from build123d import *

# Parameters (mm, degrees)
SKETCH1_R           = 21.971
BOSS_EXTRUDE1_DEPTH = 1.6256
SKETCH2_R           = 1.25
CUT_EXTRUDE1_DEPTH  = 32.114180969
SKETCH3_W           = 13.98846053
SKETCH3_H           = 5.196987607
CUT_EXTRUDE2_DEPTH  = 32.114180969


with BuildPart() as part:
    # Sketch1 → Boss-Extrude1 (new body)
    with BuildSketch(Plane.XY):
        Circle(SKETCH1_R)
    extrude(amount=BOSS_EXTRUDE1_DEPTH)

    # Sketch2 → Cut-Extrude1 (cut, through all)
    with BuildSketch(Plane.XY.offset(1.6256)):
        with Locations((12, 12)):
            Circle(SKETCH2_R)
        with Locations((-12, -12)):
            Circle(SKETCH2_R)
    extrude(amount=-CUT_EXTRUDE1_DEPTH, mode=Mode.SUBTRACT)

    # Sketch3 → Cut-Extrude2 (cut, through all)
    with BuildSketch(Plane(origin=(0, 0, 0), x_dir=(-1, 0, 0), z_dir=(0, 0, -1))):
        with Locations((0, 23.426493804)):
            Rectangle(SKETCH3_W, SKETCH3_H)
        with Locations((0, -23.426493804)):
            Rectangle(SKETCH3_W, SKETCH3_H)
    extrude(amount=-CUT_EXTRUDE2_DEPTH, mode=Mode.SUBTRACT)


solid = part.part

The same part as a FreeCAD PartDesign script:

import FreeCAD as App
import Part
import Sketcher
Q = App.Units.Quantity

doc = App.newDocument("Part")
body = doc.addObject("PartDesign::Body", "Body")

sketch1 = doc.addObject("Sketcher::SketchObject", "Sketch")
body.addObject(sketch1)
sketch1.AttachmentSupport = (doc.XY_Plane, [""])
sketch1.MapMode = "FlatFace"
sketch1.addGeometry(Part.Circle(App.Vector(0, 0, 0), App.Vector(0, 0, 1), 21.971), False)
sketch1.addConstraint([
    Sketcher.Constraint("Coincident", 0, 3, -1, 1),
    Sketcher.Constraint("Diameter", 0, Q("1.73 in")),
])
pad1 = doc.addObject("PartDesign::Pad", "Pad")
body.addObject(pad1)
pad1.Profile = sketch1
pad1.Length = Q("0.064 in")

sketch2 = doc.addObject("Sketcher::SketchObject", "Sketch001")
body.addObject(sketch2)
sketch2.AttachmentSupport = (doc.XY_Plane, [""])
sketch2.MapMode = "FlatFace"
sketch2.AttachmentOffset = App.Placement(App.Vector(0, 0, 0.064 * 25.4), App.Rotation())
sketch2.addGeometry([
    Part.Circle(App.Vector(12, 12, 0), App.Vector(0, 0, 1), 1.25),
    Part.Circle(App.Vector(-12, -12, 0), App.Vector(0, 0, 1), 1.25),
], False)
sketch2.addConstraint([
    Sketcher.Constraint("Equal", 0, 1),
    Sketcher.Constraint("Symmetric", 0, 3, 1, 3, -1, 1),
    Sketcher.Constraint("Diameter", 0, 2.5),
    Sketcher.Constraint("DistanceX", -1, 1, 0, 3, 12.0),
    Sketcher.Constraint("DistanceY", -1, 1, 0, 3, 12.0),
])
pocket1 = doc.addObject("PartDesign::Pocket", "Pocket")
body.addObject(pocket1)
pocket1.Profile = sketch2
pocket1.Type = "ThroughAll"

sketch3 = doc.addObject("Sketcher::SketchObject", "Sketch002")
body.addObject(sketch3)
sketch3.AttachmentSupport = (doc.XY_Plane, [""])
sketch3.MapMode = "FlatFace"
sketch3.addGeometry([
    Part.LineSegment(App.Vector(6.99423, 26.024988, 0), App.Vector(6.99423, 20.828, 0)),
    Part.LineSegment(App.Vector(6.99423, 20.828, 0), App.Vector(-6.99423, 20.828, 0)),
    Part.LineSegment(App.Vector(-6.99423, 20.828, 0), App.Vector(-6.99423, 26.024988, 0)),
    Part.LineSegment(App.Vector(-6.99423, 26.024988, 0), App.Vector(6.99423, 26.024988, 0)),
    Part.LineSegment(App.Vector(6.99423, -20.828, 0), App.Vector(6.99423, -26.024988, 0)),
    Part.LineSegment(App.Vector(6.99423, -26.024988, 0), App.Vector(-6.99423, -26.024988, 0)),
    Part.LineSegment(App.Vector(-6.99423, -26.024988, 0), App.Vector(-6.99423, -20.828, 0)),
    Part.LineSegment(App.Vector(-6.99423, -20.828, 0), App.Vector(6.99423, -20.828, 0)),
], False)
sketch3.addConstraint([
    Sketcher.Constraint("Coincident", 0, 2, 1, 1),
    Sketcher.Constraint("Coincident", 1, 2, 2, 1),
    Sketcher.Constraint("Coincident", 2, 2, 3, 1),
    Sketcher.Constraint("Coincident", 3, 2, 0, 1),
    Sketcher.Constraint("Coincident", 4, 2, 5, 1),
    Sketcher.Constraint("Coincident", 5, 2, 6, 1),
    Sketcher.Constraint("Coincident", 6, 2, 7, 1),
    Sketcher.Constraint("Coincident", 7, 2, 4, 1),
    Sketcher.Constraint("Vertical", 0),
    Sketcher.Constraint("Horizontal", 1),
    Sketcher.Constraint("Vertical", 2),
    Sketcher.Constraint("Horizontal", 3),
    Sketcher.Constraint("Vertical", 4),
    Sketcher.Constraint("Horizontal", 5),
    Sketcher.Constraint("Vertical", 6),
    Sketcher.Constraint("Horizontal", 7),
    Sketcher.Constraint("Symmetric", 2, 2, 4, 2, -1, 1),
    Sketcher.Constraint("Symmetric", 0, 2, 6, 2, -1, 1),
    Sketcher.Constraint("Vertical", 3, 2, 4, 2),
    Sketcher.Constraint("DistanceY", -1, 1, 0, 2, Q("0.82 in")),
    Sketcher.Constraint("DistanceX", 1, 2, 1, 1, 13.988461),
    Sketcher.Constraint("DistanceY", 0, 2, 0, 1, 5.196988),
])
pocket2 = doc.addObject("PartDesign::Pocket", "Pocket001")
body.addObject(pocket2)
pocket2.Profile = sketch3
pocket2.Type = "ThroughAll"
pocket2.Reversed = True

doc.recompute()
